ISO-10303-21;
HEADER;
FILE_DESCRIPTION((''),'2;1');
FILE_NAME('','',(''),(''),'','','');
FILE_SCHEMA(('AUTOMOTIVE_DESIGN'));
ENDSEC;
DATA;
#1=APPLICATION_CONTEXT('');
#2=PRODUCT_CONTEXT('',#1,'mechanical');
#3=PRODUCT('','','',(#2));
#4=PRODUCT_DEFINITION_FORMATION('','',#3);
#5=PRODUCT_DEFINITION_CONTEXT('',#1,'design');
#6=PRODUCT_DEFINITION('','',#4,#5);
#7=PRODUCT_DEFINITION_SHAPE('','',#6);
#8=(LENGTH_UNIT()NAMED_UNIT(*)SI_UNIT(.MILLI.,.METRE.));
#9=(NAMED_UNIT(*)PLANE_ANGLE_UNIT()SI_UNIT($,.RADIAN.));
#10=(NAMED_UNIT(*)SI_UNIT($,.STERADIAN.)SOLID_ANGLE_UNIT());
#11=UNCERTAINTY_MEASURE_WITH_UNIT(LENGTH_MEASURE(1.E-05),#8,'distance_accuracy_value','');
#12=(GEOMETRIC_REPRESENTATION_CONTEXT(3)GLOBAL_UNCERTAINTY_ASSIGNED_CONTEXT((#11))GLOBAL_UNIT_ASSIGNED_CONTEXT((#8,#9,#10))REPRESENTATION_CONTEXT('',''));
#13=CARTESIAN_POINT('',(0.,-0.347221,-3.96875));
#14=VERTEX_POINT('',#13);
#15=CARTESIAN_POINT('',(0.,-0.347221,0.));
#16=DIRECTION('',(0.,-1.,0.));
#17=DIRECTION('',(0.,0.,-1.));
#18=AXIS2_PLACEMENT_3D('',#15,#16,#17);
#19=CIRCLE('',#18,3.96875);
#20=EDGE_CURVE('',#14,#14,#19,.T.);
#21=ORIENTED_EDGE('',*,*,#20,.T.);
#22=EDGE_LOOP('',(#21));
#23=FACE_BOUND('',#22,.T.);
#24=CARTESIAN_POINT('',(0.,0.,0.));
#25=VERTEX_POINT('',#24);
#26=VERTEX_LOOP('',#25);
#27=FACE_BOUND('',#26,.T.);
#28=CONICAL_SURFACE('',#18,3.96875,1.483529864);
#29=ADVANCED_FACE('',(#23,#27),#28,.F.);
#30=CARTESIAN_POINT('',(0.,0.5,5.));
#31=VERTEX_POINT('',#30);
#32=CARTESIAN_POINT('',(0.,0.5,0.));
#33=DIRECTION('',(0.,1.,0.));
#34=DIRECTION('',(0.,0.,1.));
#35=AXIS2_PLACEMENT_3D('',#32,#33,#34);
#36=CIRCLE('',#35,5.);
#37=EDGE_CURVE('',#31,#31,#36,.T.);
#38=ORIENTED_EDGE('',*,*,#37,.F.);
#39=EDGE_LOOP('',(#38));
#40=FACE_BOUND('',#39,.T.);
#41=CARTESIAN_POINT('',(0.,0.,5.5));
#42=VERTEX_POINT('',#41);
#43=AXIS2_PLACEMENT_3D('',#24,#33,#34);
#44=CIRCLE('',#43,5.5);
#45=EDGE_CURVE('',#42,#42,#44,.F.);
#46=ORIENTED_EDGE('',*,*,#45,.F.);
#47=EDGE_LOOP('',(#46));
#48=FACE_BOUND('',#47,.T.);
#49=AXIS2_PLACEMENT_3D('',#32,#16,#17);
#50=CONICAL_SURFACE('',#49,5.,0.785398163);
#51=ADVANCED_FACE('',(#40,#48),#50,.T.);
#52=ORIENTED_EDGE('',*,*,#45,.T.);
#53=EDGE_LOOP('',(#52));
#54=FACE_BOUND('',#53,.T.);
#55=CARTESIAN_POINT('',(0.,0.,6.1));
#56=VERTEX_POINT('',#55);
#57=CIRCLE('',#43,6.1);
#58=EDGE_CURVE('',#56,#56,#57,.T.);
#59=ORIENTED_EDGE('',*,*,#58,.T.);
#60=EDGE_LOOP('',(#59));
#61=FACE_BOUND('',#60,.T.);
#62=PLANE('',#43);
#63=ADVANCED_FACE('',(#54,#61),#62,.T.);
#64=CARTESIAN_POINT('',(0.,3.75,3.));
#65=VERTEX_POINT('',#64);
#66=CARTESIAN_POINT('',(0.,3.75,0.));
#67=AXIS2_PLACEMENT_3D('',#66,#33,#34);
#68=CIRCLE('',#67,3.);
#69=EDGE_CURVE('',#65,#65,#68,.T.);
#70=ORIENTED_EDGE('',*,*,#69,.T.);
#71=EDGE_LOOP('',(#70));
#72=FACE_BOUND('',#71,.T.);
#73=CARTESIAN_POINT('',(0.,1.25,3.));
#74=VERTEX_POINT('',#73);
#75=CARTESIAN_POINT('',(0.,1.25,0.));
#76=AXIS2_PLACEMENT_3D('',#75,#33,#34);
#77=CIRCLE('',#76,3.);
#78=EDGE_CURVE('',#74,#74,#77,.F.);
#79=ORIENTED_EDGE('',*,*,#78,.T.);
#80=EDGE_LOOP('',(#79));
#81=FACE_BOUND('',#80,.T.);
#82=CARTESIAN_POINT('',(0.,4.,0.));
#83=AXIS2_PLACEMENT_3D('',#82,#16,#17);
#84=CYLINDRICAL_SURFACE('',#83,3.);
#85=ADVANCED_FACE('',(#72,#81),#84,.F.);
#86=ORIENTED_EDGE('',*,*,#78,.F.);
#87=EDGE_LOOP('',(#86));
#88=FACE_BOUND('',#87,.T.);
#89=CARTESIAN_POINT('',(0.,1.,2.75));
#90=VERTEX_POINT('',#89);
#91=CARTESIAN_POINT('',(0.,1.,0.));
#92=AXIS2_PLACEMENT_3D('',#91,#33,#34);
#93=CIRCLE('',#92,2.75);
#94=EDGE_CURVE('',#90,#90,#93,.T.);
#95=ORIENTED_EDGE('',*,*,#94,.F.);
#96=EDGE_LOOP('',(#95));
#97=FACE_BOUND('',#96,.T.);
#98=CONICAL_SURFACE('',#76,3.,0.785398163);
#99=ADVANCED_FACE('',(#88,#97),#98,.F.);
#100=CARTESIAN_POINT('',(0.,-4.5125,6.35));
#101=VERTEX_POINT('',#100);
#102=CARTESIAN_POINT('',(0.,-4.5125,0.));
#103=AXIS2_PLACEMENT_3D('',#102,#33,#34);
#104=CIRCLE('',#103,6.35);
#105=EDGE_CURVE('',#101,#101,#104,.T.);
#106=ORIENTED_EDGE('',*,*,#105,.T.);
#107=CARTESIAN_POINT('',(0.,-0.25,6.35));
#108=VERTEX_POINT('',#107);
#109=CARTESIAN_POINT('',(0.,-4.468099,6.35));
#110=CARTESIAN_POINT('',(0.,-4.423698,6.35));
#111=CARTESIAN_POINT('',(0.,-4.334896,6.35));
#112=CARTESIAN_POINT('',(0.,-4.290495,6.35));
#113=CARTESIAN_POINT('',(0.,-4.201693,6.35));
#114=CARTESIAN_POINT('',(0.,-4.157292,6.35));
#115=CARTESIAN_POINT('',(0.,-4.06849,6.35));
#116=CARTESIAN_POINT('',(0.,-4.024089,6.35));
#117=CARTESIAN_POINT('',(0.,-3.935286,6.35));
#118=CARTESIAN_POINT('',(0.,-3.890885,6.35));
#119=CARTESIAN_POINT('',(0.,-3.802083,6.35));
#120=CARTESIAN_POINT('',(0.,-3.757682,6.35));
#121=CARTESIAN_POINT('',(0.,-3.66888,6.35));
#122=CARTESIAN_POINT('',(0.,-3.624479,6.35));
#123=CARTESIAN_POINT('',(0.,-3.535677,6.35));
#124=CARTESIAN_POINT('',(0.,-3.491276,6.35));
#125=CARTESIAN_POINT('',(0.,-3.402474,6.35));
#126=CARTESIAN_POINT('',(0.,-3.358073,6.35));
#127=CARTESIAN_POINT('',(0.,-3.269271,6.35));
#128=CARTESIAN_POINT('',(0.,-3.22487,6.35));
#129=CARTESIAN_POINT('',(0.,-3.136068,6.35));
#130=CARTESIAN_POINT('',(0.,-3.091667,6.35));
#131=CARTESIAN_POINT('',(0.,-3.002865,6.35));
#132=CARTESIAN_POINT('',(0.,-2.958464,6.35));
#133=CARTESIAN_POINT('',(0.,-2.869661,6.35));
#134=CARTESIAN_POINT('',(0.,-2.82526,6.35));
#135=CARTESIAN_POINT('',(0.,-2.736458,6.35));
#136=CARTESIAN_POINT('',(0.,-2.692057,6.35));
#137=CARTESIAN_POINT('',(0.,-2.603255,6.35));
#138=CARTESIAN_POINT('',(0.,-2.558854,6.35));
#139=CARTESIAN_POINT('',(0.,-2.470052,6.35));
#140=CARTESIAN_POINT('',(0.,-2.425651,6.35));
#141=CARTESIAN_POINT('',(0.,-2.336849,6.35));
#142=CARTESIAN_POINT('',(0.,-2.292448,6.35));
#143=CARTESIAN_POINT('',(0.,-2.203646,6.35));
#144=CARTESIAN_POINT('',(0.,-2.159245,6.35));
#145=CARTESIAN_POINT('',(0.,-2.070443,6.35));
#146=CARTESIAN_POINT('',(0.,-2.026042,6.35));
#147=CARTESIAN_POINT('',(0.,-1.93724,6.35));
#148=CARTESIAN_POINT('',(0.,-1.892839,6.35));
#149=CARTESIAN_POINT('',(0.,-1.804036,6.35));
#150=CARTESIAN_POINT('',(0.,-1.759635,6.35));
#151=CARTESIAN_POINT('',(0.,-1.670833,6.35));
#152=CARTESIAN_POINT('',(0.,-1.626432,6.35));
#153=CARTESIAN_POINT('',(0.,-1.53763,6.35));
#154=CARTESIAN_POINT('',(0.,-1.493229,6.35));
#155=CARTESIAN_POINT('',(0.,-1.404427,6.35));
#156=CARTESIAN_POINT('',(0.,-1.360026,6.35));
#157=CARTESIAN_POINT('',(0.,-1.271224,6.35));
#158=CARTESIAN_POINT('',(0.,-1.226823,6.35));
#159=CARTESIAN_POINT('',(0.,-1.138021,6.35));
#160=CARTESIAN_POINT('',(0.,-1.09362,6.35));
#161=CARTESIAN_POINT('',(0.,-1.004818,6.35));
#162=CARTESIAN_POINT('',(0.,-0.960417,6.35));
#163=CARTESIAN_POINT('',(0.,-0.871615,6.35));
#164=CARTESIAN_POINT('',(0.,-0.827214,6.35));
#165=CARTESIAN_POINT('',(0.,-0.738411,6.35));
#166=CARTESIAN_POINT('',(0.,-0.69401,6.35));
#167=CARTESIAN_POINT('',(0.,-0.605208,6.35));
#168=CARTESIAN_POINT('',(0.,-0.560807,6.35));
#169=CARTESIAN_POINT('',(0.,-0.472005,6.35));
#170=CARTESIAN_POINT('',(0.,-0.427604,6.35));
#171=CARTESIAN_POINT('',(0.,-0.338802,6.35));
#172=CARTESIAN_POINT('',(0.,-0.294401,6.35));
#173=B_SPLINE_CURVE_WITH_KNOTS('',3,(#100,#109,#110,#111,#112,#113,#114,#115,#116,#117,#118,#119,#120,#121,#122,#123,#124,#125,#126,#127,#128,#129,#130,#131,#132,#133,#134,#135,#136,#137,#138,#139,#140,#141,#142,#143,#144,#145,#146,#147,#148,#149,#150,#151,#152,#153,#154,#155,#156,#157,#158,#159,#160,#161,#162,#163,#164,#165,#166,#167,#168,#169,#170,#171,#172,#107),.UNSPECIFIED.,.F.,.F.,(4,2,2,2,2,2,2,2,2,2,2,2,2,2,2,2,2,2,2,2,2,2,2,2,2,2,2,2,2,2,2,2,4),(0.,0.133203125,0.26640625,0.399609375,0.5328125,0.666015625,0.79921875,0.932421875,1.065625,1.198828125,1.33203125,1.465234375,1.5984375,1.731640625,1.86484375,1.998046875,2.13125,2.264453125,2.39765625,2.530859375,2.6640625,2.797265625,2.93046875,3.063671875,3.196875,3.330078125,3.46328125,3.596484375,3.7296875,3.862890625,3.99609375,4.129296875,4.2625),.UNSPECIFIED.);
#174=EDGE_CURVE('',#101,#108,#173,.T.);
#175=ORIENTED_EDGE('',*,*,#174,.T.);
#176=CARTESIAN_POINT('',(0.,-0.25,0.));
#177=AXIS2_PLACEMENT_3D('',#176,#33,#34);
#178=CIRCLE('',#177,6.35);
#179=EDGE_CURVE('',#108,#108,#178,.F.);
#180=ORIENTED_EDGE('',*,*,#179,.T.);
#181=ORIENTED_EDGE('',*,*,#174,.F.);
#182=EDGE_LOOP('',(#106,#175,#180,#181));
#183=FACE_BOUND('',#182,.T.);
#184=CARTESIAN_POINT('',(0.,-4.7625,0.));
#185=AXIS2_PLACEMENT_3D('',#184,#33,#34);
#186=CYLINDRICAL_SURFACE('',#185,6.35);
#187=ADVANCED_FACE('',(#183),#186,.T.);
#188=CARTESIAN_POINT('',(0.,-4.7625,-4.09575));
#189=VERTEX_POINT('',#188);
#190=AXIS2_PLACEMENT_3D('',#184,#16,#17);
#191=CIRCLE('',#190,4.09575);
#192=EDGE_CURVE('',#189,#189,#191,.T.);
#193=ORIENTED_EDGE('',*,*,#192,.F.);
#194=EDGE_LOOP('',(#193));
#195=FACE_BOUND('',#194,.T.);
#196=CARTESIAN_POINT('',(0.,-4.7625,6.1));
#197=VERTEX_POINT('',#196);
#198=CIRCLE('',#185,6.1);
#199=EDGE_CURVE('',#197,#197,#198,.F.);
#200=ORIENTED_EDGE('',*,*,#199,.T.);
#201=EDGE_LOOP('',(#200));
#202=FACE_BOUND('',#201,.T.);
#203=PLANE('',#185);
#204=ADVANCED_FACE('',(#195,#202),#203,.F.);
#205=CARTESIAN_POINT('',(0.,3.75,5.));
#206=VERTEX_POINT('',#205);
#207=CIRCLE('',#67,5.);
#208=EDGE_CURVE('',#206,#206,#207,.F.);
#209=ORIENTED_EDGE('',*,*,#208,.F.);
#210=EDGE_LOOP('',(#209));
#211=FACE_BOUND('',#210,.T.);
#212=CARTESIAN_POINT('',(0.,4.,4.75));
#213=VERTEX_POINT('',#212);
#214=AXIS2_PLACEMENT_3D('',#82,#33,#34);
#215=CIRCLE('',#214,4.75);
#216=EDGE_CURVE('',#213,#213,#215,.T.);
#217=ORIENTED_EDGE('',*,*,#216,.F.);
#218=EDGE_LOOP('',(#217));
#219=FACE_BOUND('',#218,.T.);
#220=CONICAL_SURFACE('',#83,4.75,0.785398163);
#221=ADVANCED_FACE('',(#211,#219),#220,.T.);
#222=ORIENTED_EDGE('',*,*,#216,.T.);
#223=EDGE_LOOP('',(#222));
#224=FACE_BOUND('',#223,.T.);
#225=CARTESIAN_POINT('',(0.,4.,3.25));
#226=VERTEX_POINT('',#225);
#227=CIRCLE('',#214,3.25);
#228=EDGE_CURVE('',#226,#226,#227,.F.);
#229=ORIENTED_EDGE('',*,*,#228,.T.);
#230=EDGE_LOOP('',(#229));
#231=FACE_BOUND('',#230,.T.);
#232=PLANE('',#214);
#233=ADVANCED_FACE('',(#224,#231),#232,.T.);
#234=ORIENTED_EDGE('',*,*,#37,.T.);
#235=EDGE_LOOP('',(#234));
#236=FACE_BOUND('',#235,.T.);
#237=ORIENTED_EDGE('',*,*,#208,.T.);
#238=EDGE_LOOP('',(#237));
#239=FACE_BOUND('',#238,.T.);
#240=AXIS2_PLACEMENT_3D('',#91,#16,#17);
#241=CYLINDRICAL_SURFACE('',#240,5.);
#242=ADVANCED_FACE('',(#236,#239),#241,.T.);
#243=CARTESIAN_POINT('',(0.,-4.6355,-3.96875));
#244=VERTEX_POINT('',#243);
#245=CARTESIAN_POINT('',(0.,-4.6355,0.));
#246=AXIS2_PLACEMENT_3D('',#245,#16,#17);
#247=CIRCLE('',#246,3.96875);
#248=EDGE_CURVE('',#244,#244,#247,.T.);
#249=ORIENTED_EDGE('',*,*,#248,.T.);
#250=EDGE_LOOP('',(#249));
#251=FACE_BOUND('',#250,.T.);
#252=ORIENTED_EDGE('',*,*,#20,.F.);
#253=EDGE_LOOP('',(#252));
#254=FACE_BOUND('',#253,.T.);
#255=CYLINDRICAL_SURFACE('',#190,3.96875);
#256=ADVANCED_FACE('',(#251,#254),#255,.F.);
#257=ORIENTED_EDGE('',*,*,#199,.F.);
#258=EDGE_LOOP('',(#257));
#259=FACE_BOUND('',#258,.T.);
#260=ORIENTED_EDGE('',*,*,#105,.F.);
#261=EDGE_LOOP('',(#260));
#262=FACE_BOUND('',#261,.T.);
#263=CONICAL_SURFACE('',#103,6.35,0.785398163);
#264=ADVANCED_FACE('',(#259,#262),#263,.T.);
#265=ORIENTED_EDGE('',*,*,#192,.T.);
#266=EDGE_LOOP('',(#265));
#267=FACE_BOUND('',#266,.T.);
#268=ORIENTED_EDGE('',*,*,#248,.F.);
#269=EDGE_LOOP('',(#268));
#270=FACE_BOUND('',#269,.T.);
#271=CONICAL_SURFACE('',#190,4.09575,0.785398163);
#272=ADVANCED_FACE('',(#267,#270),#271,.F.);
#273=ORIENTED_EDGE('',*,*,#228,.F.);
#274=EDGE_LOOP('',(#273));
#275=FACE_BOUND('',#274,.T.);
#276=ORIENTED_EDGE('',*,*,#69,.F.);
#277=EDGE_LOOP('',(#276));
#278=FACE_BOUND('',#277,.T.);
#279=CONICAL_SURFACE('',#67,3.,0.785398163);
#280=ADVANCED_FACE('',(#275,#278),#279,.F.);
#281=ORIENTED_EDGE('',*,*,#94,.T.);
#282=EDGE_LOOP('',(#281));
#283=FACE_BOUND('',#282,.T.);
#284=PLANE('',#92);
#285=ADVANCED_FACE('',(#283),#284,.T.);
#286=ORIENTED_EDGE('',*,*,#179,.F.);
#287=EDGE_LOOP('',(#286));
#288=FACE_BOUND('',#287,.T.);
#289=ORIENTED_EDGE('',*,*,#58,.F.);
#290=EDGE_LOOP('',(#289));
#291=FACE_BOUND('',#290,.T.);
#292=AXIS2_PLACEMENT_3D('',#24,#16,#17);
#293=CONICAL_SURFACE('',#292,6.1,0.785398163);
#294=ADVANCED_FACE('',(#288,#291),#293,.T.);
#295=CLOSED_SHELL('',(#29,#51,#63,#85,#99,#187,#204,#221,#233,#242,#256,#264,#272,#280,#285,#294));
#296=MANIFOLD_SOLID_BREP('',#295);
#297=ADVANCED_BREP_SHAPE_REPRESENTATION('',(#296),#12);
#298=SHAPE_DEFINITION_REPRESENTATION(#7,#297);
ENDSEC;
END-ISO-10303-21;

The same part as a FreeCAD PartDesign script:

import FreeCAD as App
import Part
import Sketcher

V = App.Vector
Q = App.Units.Quantity


def edges_at(feature, points):
    """Names of the edges that pass closest to the given points."""
    edges = feature.Shape.Edges
    near = lambda p: min(range(len(edges)), key=lambda i: edges[i].distToShape(Part.Vertex(*p))[0])
    return sorted({f"Edge{near(p) + 1}" for p in points})

doc = App.newDocument("Part")
body = doc.addObject("PartDesign::Body", "Body")

# Sketch on XZ plane
sketch1 = doc.addObject("Sketcher::SketchObject", "Sketch")
body.addObject(sketch1)
sketch1.AttachmentSupport = (doc.XZ_Plane, [""])
sketch1.MapMode = "FlatFace"
sketch1.addGeometry(Part.Circle(V(0, 0, 0), V(0, 0, 1), 5), False)
sketch1.addConstraint([
    Sketcher.Constraint("Coincident", 0, 3, -1, 1),
    Sketcher.Constraint("Diameter", 0, Q("10 mm")),
])
pad1 = doc.addObject("PartDesign::Pad", "Pad")
body.addObject(pad1)
pad1.Profile = sketch1
pad1.Length = 1
pad1.Reversed = True

# Sketch on XZ plane
sketch2 = doc.addObject("Sketcher::SketchObject", "Sketch001")
body.addObject(sketch2)
sketch2.AttachmentSupport = (doc.XZ_Plane, [""])
sketch2.MapMode = "FlatFace"
sketch2.addGeometry([
    Part.Circle(V(0, 0, 0), V(0, 0, 1), 5),
    Part.Circle(V(0, 0, 0), V(0, 0, 1), 3),
], False)
sketch2.addConstraint([
    Sketcher.Constraint("Coincident", 0, 3, -1, 1),
    Sketcher.Constraint("Coincident", 1, 3, -1, 1),
    Sketcher.Constraint("Diameter", 0, Q("10 mm")),
    Sketcher.Constraint("Diameter", 1, Q("6 mm")),
])
pad2 = doc.addObject("PartDesign::Pad", "Pad001")
body.addObject(pad2)
pad2.Profile = sketch2
pad2.Length = 4
pad2.Reversed = True
doc.recompute()

chamfer = doc.addObject("PartDesign::Chamfer", "Chamfer")
body.addObject(chamfer)
chamfer.Base = (pad2, edges_at(pad2, [(0, 1, -3), (0, 4, -5), (0, 4, -3)]))
chamfer.Size = 0.25

# Sketch on XZ plane
sketch3 = doc.addObject("Sketcher::SketchObject", "Sketch002")
body.addObject(sketch3)
sketch3.AttachmentSupport = (doc.XZ_Plane, [""])
sketch3.MapMode = "FlatFace"
sketch3.addGeometry(Part.Circle(V(0, 0, 0), V(0, 0, 1), 6), False)
sketch3.addConstraint([
    Sketcher.Constraint("Coincident", 0, 3, -1, 1),
    Sketcher.Constraint("Diameter", 0, Q("12.7 mm")),
])
pad3 = doc.addObject("PartDesign::Pad", "Pad002")
body.addObject(pad3)
pad3.Profile = sketch3
pad3.Length = 4.7625

# Sketch on XZ plane
sketch4 = doc.addObject("Sketcher::SketchObject", "Sketch003")
body.addObject(sketch4)
sketch4.AttachmentSupport = (doc.XZ_Plane, [""])
sketch4.MapMode = "FlatFace"
sketch4.AttachmentOffset = App.Placement(V(0, 0, 4.7625), App.Rotation())
sketch4.addGeometry(Part.Circle(V(0, 0, 0), V(0, 0, 1), 4), False)
sketch4.addConstraint([
    Sketcher.Constraint("Coincident", 0, 3, -1, 1),
    Sketcher.Constraint("Diameter", 0, Q("7.9375 mm")),
])
doc.recompute()
hole = doc.addObject("PartDesign::Hole", "Hole")
body.addObject(hole)
hole.Profile = sketch4
hole.ThreadType = "None"
hole.Diameter = 7.9375
hole.DepthType = "Dimension"
hole.Depth = 4.415279
hole.DrillPoint = "Angled"
hole.DrillPointAngle = 170
hole.HoleCutType = "Countersink"
hole.HoleCutDiameter = 8.1915
hole.HoleCutCountersinkAngle = 90
doc.recompute()

chamfer2 = doc.addObject("PartDesign::Chamfer", "Chamfer001")
body.addObject(chamfer2)
chamfer2.Base = (hole, edges_at(hole, [(0, -4.763, -6.35), (0, 0, -6.35)]))
chamfer2.Size = 0.25
doc.recompute()

chamfer3 = doc.addObject("PartDesign::Chamfer", "Chamfer002")
body.addObject(chamfer3)
chamfer3.Base = (chamfer2, edges_at(chamfer2, [(0, 0, -5)]))
chamfer3.Size = 0.5

doc.recompute()
